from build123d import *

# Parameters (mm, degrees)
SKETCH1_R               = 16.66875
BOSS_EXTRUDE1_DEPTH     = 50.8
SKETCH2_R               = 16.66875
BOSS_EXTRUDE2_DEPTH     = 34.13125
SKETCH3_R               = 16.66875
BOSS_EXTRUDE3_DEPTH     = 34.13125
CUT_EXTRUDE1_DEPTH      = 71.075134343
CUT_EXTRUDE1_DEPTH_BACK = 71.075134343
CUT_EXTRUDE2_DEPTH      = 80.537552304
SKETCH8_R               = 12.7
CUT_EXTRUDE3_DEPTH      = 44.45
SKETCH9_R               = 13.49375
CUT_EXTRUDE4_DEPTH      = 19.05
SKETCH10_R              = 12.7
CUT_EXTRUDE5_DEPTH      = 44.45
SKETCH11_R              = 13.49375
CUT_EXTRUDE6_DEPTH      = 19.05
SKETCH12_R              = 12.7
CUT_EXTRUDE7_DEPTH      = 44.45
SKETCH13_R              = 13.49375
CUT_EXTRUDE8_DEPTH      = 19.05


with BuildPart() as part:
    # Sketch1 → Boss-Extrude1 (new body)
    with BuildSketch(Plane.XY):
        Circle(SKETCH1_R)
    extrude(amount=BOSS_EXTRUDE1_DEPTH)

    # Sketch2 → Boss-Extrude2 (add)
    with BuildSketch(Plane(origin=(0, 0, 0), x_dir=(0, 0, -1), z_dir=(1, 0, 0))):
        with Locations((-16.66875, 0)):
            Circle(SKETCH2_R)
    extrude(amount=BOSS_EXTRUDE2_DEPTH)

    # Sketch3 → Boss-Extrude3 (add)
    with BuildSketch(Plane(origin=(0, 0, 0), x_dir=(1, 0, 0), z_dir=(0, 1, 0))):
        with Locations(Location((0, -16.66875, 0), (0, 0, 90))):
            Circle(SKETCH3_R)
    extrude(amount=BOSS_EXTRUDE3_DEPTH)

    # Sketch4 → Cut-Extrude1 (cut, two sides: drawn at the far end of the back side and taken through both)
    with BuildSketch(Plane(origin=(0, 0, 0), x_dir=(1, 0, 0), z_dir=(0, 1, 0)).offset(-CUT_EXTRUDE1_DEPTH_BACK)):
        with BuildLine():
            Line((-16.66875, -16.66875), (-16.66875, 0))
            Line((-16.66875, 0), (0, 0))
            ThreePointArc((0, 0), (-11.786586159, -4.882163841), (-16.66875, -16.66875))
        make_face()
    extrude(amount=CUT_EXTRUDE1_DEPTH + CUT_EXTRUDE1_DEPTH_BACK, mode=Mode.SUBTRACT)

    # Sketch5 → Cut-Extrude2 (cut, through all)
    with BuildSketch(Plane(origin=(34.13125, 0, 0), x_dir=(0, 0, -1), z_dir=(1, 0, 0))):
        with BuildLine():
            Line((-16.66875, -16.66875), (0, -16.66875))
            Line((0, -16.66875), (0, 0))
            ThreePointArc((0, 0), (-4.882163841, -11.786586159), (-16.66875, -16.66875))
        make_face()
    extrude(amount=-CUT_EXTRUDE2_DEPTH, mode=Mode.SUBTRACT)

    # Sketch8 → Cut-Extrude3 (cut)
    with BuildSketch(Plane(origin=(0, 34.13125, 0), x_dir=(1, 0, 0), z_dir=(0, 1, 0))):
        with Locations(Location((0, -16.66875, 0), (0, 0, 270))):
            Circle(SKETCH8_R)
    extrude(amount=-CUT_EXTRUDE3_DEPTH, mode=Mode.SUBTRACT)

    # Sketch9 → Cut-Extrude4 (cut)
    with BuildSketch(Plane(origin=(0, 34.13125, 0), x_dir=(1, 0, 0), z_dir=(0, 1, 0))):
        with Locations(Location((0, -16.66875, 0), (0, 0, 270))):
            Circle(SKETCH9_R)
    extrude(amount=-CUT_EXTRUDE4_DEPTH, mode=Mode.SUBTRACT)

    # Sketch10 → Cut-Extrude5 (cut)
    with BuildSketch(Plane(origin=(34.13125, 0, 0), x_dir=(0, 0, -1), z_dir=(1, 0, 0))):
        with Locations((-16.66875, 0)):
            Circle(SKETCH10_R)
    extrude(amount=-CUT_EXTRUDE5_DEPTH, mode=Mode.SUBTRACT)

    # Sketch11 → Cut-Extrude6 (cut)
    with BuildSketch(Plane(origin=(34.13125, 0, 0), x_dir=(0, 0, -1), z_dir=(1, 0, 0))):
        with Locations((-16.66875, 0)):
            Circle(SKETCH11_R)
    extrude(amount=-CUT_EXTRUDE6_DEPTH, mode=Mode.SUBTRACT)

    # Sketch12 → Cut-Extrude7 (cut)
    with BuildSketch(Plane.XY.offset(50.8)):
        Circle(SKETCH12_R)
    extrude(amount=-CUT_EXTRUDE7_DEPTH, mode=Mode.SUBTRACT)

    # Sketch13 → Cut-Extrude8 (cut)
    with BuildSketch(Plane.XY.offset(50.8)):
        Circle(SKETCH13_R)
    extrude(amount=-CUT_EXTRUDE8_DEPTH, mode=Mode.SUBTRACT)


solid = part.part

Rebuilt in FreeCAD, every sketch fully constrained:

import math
import FreeCAD as App
import Part
import Sketcher
from FreeCAD import Vector
Q = App.Units.Quantity

doc = App.newDocument("Part")
params = doc.addObject("Spreadsheet::Sheet", "Params")
for row, (alias, value) in enumerate([
    ("sketch1_diameter", "1.3125 in"),
    ("pad1_length", "2 in"),
    ("sketch2_diameter", "1.3125 in"),
    ("pad2_length", "1.34375 in"),
    ("sketch3_diameter", "1.3125 in"),
    ("pad3_length", "1.34375 in"),
    ("sketch4_radius", "0.65625 in"),
    ("sketch5_radius", "0.65625 in"),
    ("sketch6_diameter", "1 in"),
    ("pocket3_length", "1.75 in"),
    ("sketch7_diameter", "1.0625 in"),
    ("pocket4_length", "0.75 in"),
    ("sketch8_diameter", "1 in"),
    ("pocket5_length", "1.75 in"),
    ("sketch9_diameter", "1.0625 in"),
    ("pocket6_length", "0.75 in"),
    ("sketch10_diameter", "1 in"),
    ("pocket7_length", "1.75 in"),
    ("sketch11_diameter", "1.0625 in"),
    ("pocket8_length", "0.75 in"),
], start=1):
    params.set(f"A{row}", alias)
    params.set(f"B{row}", "=" + value)
    params.setAlias(f"B{row}", alias)

body = doc.addObject("PartDesign::Body", "Body")

# Sketch on XY plane
sketch1 = body.newObject("Sketcher::SketchObject", "Sketch")
sketch1.AttachmentSupport = (doc.getObject("XY_Plane"), [""])
sketch1.MapMode = "FlatFace"
sketch1.addGeometry(Part.Circle(Vector(0, 0, 0), Vector(0, 0, 1), 17), False)
sketch1.addConstraint([
    Sketcher.Constraint("Coincident", 0, 3, -1, 1),
    Sketcher.Constraint("Diameter", 0, Q("1.3125 in")),
])
sketch1.setExpression("Constraints[1]", "Params.sketch1_diameter")
pad1 = body.newObject("PartDesign::Pad", "Pad")
pad1.Profile = sketch1
pad1.setExpression("Length", "Params.pad1_length")

# Sketch on YZ plane
sketch2 = body.newObject("Sketcher::SketchObject", "Sketch001")
sketch2.AttachmentSupport = (doc.getObject("YZ_Plane"), [""])
sketch2.MapMode = "FlatFace"
sketch2.addGeometry(Part.Circle(Vector(0, 17, 0), Vector(0, 0, 1), 17), False)
sketch2.addConstraint([
    Sketcher.Constraint("PointOnObject", 0, 3, -2),
    Sketcher.Constraint("Diameter", 0, Q("1.3125 in")),
    Sketcher.Constraint("DistanceY", -1, 1, 0, 3, Q("0.65625 in")),
])
sketch2.setExpression("Constraints[1]", "Params.sketch2_diameter")
pad2 = body.newObject("PartDesign::Pad", "Pad001")
pad2.Profile = sketch2
pad2.setExpression("Length", "Params.pad2_length")

# Sketch on XZ plane
sketch3 = body.newObject("Sketcher::SketchObject", "Sketch002")
sketch3.AttachmentSupport = (doc.getObject("XZ_Plane"), [""])
sketch3.MapMode = "FlatFace"
sketch3.addGeometry(Part.Circle(Vector(0, 17, 0), Vector(0, 0, 1), 17), False)
sketch3.addConstraint([
    Sketcher.Constraint("PointOnObject", 0, 3, -2),
    Sketcher.Constraint("Diameter", 0, Q("1.3125 in")),
    Sketcher.Constraint("DistanceY", -1, 1, 0, 3, Q("0.65625 in")),
])
sketch3.setExpression("Constraints[1]", "Params.sketch3_diameter")
pad3 = body.newObject("PartDesign::Pad", "Pad002")
pad3.Profile = sketch3
pad3.setExpression("Length", "Params.pad3_length")
pad3.Reversed = True

# Sketch on XZ plane
sketch4 = body.newObject("Sketcher::SketchObject", "Sketch003")
sketch4.AttachmentSupport = (doc.getObject("XZ_Plane"), [""])
sketch4.MapMode = "FlatFace"
sketch4.addGeometry([
    Part.LineSegment(Vector(-17, 0, 0), Vector(-17, 17, 0)),
    Part.ArcOfCircle(Part.Circle(Vector(0, 17, 0), Vector(0, 0, 1), 17), math.radians(180), math.radians(270)),
    Part.LineSegment(Vector(0, 0, 0), Vector(-17, 0, 0)),
], False)
sketch4.addConstraint([
    Sketcher.Constraint("Tangent", 0, 2, 1, 1),
    Sketcher.Constraint("Tangent", 1, 2, 2, 1),
    Sketcher.Constraint("Coincident", 2, 2, 0, 1),
    Sketcher.Constraint("Vertical", 0),
    Sketcher.Constraint("Horizontal", 2),
    Sketcher.Constraint("Coincident", 1, 2, -1, 1),
    Sketcher.Constraint("Radius", 1, Q("0.65625 in")),
])
sketch4.setExpression("Constraints[6]", "Params.sketch4_radius")
pocket1 = body.newObject("PartDesign::Pocket", "Pocket")
pocket1.Profile = sketch4
pocket1.Type = "ThroughAll"
pocket1.Midplane = True

# Sketch on YZ plane
sketch5 = body.newObject("Sketcher::SketchObject", "Sketch004")
sketch5.AttachmentSupport = (doc.getObject("YZ_Plane"), [""])
sketch5.MapMode = "FlatFace"
sketch5.AttachmentOffset = App.Placement(Vector(0, 0, 1.34375 * 25.4), App.Rotation())
sketch5.addGeometry([
    Part.LineSegment(Vector(-17, 17, 0), Vector(-17, 0, 0)),
    Part.LineSegment(Vector(-17, 0, 0), Vector(0, 0, 0)),
    Part.ArcOfCircle(Part.Circle(Vector(0, 17, 0), Vector(0, 0, 1), 17), math.radians(180), math.radians(270)),
], False)
sketch5.addConstraint([
    Sketcher.Constraint("Coincident", 0, 2, 1, 1),
    Sketcher.Constraint("Tangent", 1, 2, 2, 2),
    Sketcher.Constraint("Tangent", 2, 1, 0, 1),
    Sketcher.Constraint("Vertical", 0),
    Sketcher.Constraint("Horizontal", 1),
    Sketcher.Constraint("Coincident", 1, 2, -1, 1),
    Sketcher.Constraint("Radius", 2, Q("0.65625 in")),
])
sketch5.setExpression("Constraints[6]", "Params.sketch5_radius")
pocket2 = body.newObject("PartDesign::Pocket", "Pocket001")
pocket2.Profile = sketch5
pocket2.Type = "ThroughAll"

# Sketch on XZ plane
sketch6 = body.newObject("Sketcher::SketchObject", "Sketch005")
sketch6.AttachmentSupport = (doc.getObject("XZ_Plane"), [""])
sketch6.MapMode = "FlatFace"
sketch6.AttachmentOffset = App.Placement(Vector(0, 0, -1.34375 * 25.4), App.Rotation())
sketch6.addGeometry(Part.Circle(Vector(0, 17, 0), Vector(0, 0, 1), 13), False)
sketch6.addConstraint([
    Sketcher.Constraint("PointOnObject", 0, 3, -2),
    Sketcher.Constraint("Diameter", 0, Q("1 in")),
    Sketcher.Constraint("DistanceY", -1, 1, 0, 3, Q("0.65625 in")),
])
sketch6.setExpression("Constraints[1]", "Params.sketch6_diameter")
pocket3 = body.newObject("PartDesign::Pocket", "Pocket002")
pocket3.Profile = sketch6
pocket3.setExpression("Length", "Params.pocket3_length")
pocket3.Reversed = True

# Sketch on XZ plane
sketch7 = body.newObject("Sketcher::SketchObject", "Sketch006")
sketch7.AttachmentSupport = (doc.getObject("XZ_Plane"), [""])
sketch7.MapMode = "FlatFace"
sketch7.AttachmentOffset = App.Placement(Vector(0, 0, -1.34375 * 25.4), App.Rotation())
sketch7.addGeometry(Part.Circle(Vector(0, 17, 0), Vector(0, 0, 1), 13), False)
sketch7.addConstraint([
    Sketcher.Constraint("PointOnObject", 0, 3, -2),
    Sketcher.Constraint("Diameter", 0, Q("1.0625 in")),
    Sketcher.Constraint("DistanceY", -1, 1, 0, 3, Q("0.65625 in")),
])
sketch7.setExpression("Constraints[1]", "Params.sketch7_diameter")
pocket4 = body.newObject("PartDesign::Pocket", "Pocket003")
pocket4.Profile = sketch7
pocket4.setExpression("Length", "Params.pocket4_length")
pocket4.Reversed = True

# Sketch on YZ plane
sketch8 = body.newObject("Sketcher::SketchObject", "Sketch007")
sketch8.AttachmentSupport = (doc.getObject("YZ_Plane"), [""])
sketch8.MapMode = "FlatFace"
sketch8.AttachmentOffset = App.Placement(Vector(0, 0, 1.34375 * 25.4), App.Rotation())
sketch8.addGeometry(Part.Circle(Vector(0, 17, 0), Vector(0, 0, 1), 13), False)
sketch8.addConstraint([
    Sketcher.Constraint("PointOnObject", 0, 3, -2),
    Sketcher.Constraint("Diameter", 0, Q("1 in")),
    Sketcher.Constraint("DistanceY", -1, 1, 0, 3, Q("0.65625 in")),
])
sketch8.setExpression("Constraints[1]", "Params.sketch8_diameter")
pocket5 = body.newObject("PartDesign::Pocket", "Pocket004")
pocket5.Profile = sketch8
pocket5.setExpression("Length", "Params.pocket5_length")

# Sketch on YZ plane
sketch9 = body.newObject("Sketcher::SketchObject", "Sketch008")
sketch9.AttachmentSupport = (doc.getObject("YZ_Plane"), [""])
sketch9.MapMode = "FlatFace"
sketch9.AttachmentOffset = App.Placement(Vector(0, 0, 1.34375 * 25.4), App.Rotation())
sketch9.addGeometry(Part.Circle(Vector(0, 17, 0), Vector(0, 0, 1), 13), False)
sketch9.addConstraint([
    Sketcher.Constraint("PointOnObject", 0, 3, -2),
    Sketcher.Constraint("Diameter", 0, Q("1.0625 in")),
    Sketcher.Constraint("DistanceY", -1, 1, 0, 3, Q("0.65625 in")),
])
sketch9.setExpression("Constraints[1]", "Params.sketch9_diameter")
pocket6 = body.newObject("PartDesign::Pocket", "Pocket005")
pocket6.Profile = sketch9
pocket6.setExpression("Length", "Params.pocket6_length")

# Sketch on XY plane
sketch10 = body.newObject("Sketcher::SketchObject", "Sketch009")
sketch10.AttachmentSupport = (doc.getObject("XY_Plane"), [""])
sketch10.MapMode = "FlatFace"
sketch10.AttachmentOffset = App.Placement(Vector(0, 0, 2 * 25.4), App.Rotation())
sketch10.addGeometry(Part.Circle(Vector(0, 0, 0), Vector(0, 0, 1), 13), False)
sketch10.addConstraint([
    Sketcher.Constraint("Coincident", 0, 3, -1, 1),
    Sketcher.Constraint("Diameter", 0, Q("1 in")),
])
sketch10.setExpression("Constraints[1]", "Params.sketch10_diameter")
pocket7 = body.newObject("PartDesign::Pocket", "Pocket006")
pocket7.Profile = sketch10
pocket7.setExpression("Length", "Params.pocket7_length")

# Sketch on XY plane
sketch11 = body.newObject("Sketcher::SketchObject", "Sketch010")
sketch11.AttachmentSupport = (doc.getObject("XY_Plane"), [""])
sketch11.MapMode = "FlatFace"
sketch11.AttachmentOffset = App.Placement(Vector(0, 0, 2 * 25.4), App.Rotation())
sketch11.addGeometry(Part.Circle(Vector(0, 0, 0), Vector(0, 0, 1), 13), False)
sketch11.addConstraint([
    Sketcher.Constraint("Coincident", 0, 3, -1, 1),
    Sketcher.Constraint("Diameter", 0, Q("1.0625 in")),
])
sketch11.setExpression("Constraints[1]", "Params.sketch11_diameter")
pocket8 = body.newObject("PartDesign::Pocket", "Pocket007")
pocket8.Profile = sketch11
pocket8.setExpression("Length", "Params.pocket8_length")

doc.recompute()
